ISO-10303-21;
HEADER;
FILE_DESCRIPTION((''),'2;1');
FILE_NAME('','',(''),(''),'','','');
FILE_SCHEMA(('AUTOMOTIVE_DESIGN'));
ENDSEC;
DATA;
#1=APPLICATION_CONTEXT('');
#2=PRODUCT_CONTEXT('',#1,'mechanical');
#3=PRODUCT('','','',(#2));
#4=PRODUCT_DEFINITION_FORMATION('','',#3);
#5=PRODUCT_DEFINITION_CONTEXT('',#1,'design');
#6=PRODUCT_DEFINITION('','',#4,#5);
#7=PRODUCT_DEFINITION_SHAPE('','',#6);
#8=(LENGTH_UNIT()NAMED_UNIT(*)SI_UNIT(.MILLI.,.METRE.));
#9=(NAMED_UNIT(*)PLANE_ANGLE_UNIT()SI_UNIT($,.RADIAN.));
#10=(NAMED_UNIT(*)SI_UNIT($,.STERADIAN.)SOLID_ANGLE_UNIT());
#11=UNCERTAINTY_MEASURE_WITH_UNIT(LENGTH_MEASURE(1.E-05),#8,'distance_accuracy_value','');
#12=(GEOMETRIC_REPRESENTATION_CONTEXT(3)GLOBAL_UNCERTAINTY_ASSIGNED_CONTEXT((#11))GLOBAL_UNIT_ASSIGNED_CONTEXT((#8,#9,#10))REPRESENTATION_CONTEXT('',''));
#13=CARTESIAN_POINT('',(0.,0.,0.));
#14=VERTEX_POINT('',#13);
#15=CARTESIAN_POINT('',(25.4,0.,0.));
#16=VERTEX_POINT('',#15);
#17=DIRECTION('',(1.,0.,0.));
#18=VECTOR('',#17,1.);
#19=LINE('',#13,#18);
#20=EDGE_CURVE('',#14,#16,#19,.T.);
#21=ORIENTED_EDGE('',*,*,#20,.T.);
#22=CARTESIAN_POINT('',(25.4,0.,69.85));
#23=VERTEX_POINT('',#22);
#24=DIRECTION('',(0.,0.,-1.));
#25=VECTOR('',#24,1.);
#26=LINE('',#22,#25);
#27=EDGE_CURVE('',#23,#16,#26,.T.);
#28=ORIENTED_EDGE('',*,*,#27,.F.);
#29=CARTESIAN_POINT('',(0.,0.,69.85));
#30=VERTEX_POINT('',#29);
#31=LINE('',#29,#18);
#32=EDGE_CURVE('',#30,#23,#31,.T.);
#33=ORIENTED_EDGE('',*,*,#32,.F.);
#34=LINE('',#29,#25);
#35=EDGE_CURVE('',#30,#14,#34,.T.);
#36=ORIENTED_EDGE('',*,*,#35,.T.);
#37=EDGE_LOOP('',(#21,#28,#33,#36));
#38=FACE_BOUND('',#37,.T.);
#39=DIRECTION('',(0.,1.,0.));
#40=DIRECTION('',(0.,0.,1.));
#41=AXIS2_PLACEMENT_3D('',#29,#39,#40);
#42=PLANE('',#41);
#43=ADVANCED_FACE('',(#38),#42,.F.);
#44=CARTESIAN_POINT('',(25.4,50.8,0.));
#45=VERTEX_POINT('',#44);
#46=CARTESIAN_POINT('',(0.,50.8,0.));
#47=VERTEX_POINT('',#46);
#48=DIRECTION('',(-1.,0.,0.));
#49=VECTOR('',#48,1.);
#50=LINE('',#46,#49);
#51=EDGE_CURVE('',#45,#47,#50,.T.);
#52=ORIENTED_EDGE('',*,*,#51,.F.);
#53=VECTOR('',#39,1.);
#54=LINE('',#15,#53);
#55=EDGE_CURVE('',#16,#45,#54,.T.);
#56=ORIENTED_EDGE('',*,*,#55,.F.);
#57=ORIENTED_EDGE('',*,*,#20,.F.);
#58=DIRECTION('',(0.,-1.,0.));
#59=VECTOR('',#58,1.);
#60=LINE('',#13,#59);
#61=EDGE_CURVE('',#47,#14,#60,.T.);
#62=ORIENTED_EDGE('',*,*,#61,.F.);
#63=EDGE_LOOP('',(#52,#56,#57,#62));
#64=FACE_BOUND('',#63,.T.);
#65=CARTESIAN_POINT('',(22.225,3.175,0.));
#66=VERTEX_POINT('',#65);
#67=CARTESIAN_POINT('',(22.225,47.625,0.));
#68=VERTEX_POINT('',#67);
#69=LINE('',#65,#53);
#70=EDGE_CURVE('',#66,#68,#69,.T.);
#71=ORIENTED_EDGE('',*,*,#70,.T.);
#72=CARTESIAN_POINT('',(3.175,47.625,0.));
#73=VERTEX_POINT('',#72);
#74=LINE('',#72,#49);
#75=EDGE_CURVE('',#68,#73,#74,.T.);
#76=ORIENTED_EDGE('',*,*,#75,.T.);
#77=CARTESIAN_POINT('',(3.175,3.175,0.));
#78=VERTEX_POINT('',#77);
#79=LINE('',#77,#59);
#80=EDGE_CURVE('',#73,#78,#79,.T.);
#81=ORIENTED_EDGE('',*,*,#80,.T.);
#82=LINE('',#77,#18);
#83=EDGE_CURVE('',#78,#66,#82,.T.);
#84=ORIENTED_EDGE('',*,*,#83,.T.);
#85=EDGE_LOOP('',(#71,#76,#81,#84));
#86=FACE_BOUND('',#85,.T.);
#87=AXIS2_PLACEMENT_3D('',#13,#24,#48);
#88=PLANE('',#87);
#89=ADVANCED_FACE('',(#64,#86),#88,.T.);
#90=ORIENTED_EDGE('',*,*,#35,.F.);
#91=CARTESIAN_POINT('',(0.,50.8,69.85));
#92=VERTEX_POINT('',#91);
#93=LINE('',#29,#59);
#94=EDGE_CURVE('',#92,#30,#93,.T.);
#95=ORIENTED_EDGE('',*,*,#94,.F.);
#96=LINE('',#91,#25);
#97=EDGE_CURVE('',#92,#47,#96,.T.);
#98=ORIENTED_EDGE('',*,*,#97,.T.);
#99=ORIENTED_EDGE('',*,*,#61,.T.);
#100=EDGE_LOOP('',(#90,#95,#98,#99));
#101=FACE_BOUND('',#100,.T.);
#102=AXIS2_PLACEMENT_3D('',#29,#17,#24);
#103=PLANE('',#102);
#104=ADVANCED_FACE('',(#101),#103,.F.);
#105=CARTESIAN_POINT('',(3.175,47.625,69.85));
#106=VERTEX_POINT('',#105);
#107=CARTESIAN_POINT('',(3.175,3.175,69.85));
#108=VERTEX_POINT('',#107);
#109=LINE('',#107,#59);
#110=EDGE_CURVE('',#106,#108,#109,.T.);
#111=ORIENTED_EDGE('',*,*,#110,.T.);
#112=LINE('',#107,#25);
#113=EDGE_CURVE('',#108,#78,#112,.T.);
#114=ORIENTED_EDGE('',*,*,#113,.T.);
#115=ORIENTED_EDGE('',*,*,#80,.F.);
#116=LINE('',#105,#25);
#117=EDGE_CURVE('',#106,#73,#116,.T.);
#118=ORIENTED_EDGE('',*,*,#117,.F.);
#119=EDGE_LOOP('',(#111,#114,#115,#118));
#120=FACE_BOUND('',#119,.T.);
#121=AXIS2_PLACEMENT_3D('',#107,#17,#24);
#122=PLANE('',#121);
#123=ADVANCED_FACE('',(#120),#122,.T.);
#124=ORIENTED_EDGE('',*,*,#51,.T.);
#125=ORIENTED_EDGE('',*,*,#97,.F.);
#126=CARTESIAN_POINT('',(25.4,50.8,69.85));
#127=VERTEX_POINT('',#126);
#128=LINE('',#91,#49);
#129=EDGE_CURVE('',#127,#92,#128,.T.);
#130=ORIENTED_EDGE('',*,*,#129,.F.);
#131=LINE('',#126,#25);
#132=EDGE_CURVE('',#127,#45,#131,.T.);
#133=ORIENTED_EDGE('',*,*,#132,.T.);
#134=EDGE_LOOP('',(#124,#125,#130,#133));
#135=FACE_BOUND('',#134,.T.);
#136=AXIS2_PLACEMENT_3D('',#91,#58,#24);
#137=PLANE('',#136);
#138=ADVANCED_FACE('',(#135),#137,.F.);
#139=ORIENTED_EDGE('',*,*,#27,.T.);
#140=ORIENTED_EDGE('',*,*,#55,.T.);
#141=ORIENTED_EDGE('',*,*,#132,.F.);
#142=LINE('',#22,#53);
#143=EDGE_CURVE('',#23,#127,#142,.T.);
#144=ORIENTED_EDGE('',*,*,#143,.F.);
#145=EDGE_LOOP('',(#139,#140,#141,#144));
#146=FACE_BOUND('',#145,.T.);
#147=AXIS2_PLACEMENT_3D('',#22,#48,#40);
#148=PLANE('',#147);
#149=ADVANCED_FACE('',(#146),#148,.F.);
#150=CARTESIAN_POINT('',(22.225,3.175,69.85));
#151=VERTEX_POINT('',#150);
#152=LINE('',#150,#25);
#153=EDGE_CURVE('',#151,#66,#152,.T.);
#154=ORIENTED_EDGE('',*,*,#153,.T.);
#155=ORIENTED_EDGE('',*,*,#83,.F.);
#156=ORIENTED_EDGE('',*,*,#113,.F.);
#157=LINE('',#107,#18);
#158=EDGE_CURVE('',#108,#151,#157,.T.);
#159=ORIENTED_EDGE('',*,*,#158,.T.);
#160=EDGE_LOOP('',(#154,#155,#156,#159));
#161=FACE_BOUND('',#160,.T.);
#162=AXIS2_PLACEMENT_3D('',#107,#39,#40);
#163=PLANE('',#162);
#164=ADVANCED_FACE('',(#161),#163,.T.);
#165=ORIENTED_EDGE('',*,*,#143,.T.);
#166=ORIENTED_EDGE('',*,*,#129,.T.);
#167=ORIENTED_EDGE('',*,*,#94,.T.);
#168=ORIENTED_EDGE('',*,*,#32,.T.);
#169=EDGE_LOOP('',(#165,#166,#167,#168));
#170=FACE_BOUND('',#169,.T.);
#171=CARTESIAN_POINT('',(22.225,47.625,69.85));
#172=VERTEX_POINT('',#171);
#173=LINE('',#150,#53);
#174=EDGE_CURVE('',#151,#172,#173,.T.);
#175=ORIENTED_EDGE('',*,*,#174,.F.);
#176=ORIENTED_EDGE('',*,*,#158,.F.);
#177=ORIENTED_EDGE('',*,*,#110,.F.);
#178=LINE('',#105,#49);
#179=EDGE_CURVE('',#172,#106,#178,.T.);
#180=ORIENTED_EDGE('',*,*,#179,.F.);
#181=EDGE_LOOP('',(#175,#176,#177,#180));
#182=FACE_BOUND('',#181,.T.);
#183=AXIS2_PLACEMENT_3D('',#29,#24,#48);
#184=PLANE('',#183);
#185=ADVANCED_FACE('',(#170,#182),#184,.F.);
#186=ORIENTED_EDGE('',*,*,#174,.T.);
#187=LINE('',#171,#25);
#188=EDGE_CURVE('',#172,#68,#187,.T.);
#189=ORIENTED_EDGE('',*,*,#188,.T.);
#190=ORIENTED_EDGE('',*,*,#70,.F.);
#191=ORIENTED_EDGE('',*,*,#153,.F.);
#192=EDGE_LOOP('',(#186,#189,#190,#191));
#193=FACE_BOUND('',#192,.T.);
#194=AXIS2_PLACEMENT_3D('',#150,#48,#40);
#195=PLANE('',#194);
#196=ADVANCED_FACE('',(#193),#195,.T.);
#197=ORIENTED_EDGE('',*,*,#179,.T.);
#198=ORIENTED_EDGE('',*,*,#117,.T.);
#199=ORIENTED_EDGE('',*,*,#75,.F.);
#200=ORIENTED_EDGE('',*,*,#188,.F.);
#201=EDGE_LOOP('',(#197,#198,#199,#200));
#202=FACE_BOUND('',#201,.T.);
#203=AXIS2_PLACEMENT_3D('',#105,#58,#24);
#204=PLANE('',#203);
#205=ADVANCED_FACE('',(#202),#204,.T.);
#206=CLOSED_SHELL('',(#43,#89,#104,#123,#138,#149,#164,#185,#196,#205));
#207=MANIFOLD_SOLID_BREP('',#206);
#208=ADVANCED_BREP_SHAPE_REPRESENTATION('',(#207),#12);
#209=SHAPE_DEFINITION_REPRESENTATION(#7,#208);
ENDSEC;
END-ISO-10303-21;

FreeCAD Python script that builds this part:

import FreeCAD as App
import Part
import Sketcher

V = App.Vector
Q = App.Units.Quantity

doc = App.newDocument("Part")
params = doc.addObject("Spreadsheet::Sheet", "Params")
for row, (alias, value) in enumerate([
    ("sketch1_width", "1 in"),
    ("sketch1_height", "2 in"),
    ("sketch1_width2", "0.75 in"),
    ("sketch1_height2", "1.75 in"),
    ("pad1_length", "2.75 in"),
], start=1):
    params.set(f"A{row}", alias)
    params.set(f"B{row}", "=" + value)
    params.setAlias(f"B{row}", alias)

body = doc.addObject("PartDesign::Body", "Body")

sketch1 = body.newObject("Sketcher::SketchObject", "Sketch")
sketch1.AttachmentSupport = (doc.getObject("XY_Plane"), [""])
sketch1.MapMode = "FlatFace"
sketch1.addGeometry([
    Part.LineSegment(V(0, 51, 0), V(0, 0, 0)),
    Part.LineSegment(V(0, 0, 0), V(25, 0, 0)),
    Part.LineSegment(V(25, 0, 0), V(25, 51, 0)),
    Part.LineSegment(V(25, 51, 0), V(0, 51, 0)),
    Part.LineSegment(V(22, 3, 0), V(3, 3, 0)),
    Part.LineSegment(V(3, 3, 0), V(3, 48, 0)),
    Part.LineSegment(V(3, 48, 0), V(22, 48, 0)),
    Part.LineSegment(V(22, 48, 0), V(22, 3, 0)),
], False)
sketch1.addConstraint([
    Sketcher.Constraint("Coincident", 0, 2, 1, 1),
    Sketcher.Constraint("Coincident", 1, 2, 2, 1),
    Sketcher.Constraint("Coincident", 2, 2, 3, 1),
    Sketcher.Constraint("Coincident", 3, 2, 0, 1),
    Sketcher.Constraint("Coincident", 4, 2, 5, 1),
    Sketcher.Constraint("Coincident", 5, 2, 6, 1),
    Sketcher.Constraint("Coincident", 6, 2, 7, 1),
    Sketcher.Constraint("Coincident", 7, 2, 4, 1),
    Sketcher.Constraint("Vertical", 0),
    Sketcher.Constraint("Horizontal", 1),
    Sketcher.Constraint("Vertical", 2),
    Sketcher.Constraint("Horizontal", 3),
    Sketcher.Constraint("Horizontal", 4),
    Sketcher.Constraint("Vertical", 5),
    Sketcher.Constraint("Horizontal", 6),
    Sketcher.Constraint("Vertical", 7),
    Sketcher.Constraint("Coincident", 0, 2, -1, 1),
    Sketcher.Constraint("DistanceX", 1, 1, 1, 2, Q("1 in")),
    Sketcher.Constraint("DistanceY", 0, 2, 0, 1, Q("2 in")),
    Sketcher.Constraint("DistanceX", 4, 2, 4, 1, Q("0.75 in")),
    Sketcher.Constraint("DistanceY", 5, 1, 5, 2, Q("1.75 in")),
    Sketcher.Constraint("DistanceX", -1, 1, 4, 2, Q("0.125 in")),
    Sketcher.Constraint("DistanceY", -1, 1, 4, 2, Q("0.125 in")),
])
sketch1.setExpression("Constraints[17]", "Params.sketch1_width")
sketch1.setExpression("Constraints[18]", "Params.sketch1_height")
sketch1.setExpression("Constraints[19]", "Params.sketch1_width2")
sketch1.setExpression("Constraints[20]", "Params.sketch1_height2")
pad1 = body.newObject("PartDesign::Pad", "Pad")
pad1.Profile = sketch1
pad1.setExpression("Length", "Params.pad1_length")

doc.recompute()
